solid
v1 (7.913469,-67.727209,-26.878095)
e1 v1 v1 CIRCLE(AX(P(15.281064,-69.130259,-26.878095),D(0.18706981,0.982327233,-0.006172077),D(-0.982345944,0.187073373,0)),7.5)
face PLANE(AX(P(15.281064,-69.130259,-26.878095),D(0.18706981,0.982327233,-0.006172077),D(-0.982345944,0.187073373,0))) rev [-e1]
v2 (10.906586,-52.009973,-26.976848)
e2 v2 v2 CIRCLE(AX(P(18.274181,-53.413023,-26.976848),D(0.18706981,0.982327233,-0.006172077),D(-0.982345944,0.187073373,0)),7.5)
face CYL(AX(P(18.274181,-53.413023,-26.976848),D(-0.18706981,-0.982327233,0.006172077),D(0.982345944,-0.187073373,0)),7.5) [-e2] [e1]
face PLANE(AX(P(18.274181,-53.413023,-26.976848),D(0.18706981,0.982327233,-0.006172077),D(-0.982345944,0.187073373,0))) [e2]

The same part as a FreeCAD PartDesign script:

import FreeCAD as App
import Part
import Sketcher

V = App.Vector

doc = App.newDocument("Part")
params = doc.addObject("Spreadsheet::Sheet", "Params")
for row, (alias, value) in enumerate([
    ("sketch1_diameter", "15 mm"),
    ("pad1_length", "16 mm"),
], start=1):
    params.set(f"A{row}", alias)
    params.set(f"B{row}", "=" + value)
    params.setAlias(f"B{row}", alias)

body = doc.addObject("PartDesign::Body", "Body")

# Sketch on an angled plane
sketch1 = doc.addObject("Sketcher::SketchObject", "Sketch")
body.addObject(sketch1)
sketch1.Placement = App.Placement(V(-12.137841, -63.737336, 0.400469), App.Rotation(V(-0.977288833, 0.185466222, -0.102512518), V(-0.099556126, 0.025208899, 0.994712566), V(0.18706981, 0.982327233, -0.006172077), "ZXY"))
sketch1.addGeometry(Part.Circle(V(-25, -30, 0), V(0, 0, 1), 8), False)
sketch1.addConstraint([
    Sketcher.Constraint("Diameter", 0, 15.0),
    Sketcher.Constraint("DistanceX", 0, 3, -1, 1, 25.0),
    Sketcher.Constraint("DistanceY", 0, 3, -1, 1, 30.0),
])
sketch1.setExpression("Constraints[0]", "Params.sketch1_diameter")
pad1 = doc.addObject("PartDesign::Pad", "Pad")
body.addObject(pad1)
pad1.Profile = sketch1
pad1.setExpression("Length", "Params.pad1_length")

doc.recompute()
